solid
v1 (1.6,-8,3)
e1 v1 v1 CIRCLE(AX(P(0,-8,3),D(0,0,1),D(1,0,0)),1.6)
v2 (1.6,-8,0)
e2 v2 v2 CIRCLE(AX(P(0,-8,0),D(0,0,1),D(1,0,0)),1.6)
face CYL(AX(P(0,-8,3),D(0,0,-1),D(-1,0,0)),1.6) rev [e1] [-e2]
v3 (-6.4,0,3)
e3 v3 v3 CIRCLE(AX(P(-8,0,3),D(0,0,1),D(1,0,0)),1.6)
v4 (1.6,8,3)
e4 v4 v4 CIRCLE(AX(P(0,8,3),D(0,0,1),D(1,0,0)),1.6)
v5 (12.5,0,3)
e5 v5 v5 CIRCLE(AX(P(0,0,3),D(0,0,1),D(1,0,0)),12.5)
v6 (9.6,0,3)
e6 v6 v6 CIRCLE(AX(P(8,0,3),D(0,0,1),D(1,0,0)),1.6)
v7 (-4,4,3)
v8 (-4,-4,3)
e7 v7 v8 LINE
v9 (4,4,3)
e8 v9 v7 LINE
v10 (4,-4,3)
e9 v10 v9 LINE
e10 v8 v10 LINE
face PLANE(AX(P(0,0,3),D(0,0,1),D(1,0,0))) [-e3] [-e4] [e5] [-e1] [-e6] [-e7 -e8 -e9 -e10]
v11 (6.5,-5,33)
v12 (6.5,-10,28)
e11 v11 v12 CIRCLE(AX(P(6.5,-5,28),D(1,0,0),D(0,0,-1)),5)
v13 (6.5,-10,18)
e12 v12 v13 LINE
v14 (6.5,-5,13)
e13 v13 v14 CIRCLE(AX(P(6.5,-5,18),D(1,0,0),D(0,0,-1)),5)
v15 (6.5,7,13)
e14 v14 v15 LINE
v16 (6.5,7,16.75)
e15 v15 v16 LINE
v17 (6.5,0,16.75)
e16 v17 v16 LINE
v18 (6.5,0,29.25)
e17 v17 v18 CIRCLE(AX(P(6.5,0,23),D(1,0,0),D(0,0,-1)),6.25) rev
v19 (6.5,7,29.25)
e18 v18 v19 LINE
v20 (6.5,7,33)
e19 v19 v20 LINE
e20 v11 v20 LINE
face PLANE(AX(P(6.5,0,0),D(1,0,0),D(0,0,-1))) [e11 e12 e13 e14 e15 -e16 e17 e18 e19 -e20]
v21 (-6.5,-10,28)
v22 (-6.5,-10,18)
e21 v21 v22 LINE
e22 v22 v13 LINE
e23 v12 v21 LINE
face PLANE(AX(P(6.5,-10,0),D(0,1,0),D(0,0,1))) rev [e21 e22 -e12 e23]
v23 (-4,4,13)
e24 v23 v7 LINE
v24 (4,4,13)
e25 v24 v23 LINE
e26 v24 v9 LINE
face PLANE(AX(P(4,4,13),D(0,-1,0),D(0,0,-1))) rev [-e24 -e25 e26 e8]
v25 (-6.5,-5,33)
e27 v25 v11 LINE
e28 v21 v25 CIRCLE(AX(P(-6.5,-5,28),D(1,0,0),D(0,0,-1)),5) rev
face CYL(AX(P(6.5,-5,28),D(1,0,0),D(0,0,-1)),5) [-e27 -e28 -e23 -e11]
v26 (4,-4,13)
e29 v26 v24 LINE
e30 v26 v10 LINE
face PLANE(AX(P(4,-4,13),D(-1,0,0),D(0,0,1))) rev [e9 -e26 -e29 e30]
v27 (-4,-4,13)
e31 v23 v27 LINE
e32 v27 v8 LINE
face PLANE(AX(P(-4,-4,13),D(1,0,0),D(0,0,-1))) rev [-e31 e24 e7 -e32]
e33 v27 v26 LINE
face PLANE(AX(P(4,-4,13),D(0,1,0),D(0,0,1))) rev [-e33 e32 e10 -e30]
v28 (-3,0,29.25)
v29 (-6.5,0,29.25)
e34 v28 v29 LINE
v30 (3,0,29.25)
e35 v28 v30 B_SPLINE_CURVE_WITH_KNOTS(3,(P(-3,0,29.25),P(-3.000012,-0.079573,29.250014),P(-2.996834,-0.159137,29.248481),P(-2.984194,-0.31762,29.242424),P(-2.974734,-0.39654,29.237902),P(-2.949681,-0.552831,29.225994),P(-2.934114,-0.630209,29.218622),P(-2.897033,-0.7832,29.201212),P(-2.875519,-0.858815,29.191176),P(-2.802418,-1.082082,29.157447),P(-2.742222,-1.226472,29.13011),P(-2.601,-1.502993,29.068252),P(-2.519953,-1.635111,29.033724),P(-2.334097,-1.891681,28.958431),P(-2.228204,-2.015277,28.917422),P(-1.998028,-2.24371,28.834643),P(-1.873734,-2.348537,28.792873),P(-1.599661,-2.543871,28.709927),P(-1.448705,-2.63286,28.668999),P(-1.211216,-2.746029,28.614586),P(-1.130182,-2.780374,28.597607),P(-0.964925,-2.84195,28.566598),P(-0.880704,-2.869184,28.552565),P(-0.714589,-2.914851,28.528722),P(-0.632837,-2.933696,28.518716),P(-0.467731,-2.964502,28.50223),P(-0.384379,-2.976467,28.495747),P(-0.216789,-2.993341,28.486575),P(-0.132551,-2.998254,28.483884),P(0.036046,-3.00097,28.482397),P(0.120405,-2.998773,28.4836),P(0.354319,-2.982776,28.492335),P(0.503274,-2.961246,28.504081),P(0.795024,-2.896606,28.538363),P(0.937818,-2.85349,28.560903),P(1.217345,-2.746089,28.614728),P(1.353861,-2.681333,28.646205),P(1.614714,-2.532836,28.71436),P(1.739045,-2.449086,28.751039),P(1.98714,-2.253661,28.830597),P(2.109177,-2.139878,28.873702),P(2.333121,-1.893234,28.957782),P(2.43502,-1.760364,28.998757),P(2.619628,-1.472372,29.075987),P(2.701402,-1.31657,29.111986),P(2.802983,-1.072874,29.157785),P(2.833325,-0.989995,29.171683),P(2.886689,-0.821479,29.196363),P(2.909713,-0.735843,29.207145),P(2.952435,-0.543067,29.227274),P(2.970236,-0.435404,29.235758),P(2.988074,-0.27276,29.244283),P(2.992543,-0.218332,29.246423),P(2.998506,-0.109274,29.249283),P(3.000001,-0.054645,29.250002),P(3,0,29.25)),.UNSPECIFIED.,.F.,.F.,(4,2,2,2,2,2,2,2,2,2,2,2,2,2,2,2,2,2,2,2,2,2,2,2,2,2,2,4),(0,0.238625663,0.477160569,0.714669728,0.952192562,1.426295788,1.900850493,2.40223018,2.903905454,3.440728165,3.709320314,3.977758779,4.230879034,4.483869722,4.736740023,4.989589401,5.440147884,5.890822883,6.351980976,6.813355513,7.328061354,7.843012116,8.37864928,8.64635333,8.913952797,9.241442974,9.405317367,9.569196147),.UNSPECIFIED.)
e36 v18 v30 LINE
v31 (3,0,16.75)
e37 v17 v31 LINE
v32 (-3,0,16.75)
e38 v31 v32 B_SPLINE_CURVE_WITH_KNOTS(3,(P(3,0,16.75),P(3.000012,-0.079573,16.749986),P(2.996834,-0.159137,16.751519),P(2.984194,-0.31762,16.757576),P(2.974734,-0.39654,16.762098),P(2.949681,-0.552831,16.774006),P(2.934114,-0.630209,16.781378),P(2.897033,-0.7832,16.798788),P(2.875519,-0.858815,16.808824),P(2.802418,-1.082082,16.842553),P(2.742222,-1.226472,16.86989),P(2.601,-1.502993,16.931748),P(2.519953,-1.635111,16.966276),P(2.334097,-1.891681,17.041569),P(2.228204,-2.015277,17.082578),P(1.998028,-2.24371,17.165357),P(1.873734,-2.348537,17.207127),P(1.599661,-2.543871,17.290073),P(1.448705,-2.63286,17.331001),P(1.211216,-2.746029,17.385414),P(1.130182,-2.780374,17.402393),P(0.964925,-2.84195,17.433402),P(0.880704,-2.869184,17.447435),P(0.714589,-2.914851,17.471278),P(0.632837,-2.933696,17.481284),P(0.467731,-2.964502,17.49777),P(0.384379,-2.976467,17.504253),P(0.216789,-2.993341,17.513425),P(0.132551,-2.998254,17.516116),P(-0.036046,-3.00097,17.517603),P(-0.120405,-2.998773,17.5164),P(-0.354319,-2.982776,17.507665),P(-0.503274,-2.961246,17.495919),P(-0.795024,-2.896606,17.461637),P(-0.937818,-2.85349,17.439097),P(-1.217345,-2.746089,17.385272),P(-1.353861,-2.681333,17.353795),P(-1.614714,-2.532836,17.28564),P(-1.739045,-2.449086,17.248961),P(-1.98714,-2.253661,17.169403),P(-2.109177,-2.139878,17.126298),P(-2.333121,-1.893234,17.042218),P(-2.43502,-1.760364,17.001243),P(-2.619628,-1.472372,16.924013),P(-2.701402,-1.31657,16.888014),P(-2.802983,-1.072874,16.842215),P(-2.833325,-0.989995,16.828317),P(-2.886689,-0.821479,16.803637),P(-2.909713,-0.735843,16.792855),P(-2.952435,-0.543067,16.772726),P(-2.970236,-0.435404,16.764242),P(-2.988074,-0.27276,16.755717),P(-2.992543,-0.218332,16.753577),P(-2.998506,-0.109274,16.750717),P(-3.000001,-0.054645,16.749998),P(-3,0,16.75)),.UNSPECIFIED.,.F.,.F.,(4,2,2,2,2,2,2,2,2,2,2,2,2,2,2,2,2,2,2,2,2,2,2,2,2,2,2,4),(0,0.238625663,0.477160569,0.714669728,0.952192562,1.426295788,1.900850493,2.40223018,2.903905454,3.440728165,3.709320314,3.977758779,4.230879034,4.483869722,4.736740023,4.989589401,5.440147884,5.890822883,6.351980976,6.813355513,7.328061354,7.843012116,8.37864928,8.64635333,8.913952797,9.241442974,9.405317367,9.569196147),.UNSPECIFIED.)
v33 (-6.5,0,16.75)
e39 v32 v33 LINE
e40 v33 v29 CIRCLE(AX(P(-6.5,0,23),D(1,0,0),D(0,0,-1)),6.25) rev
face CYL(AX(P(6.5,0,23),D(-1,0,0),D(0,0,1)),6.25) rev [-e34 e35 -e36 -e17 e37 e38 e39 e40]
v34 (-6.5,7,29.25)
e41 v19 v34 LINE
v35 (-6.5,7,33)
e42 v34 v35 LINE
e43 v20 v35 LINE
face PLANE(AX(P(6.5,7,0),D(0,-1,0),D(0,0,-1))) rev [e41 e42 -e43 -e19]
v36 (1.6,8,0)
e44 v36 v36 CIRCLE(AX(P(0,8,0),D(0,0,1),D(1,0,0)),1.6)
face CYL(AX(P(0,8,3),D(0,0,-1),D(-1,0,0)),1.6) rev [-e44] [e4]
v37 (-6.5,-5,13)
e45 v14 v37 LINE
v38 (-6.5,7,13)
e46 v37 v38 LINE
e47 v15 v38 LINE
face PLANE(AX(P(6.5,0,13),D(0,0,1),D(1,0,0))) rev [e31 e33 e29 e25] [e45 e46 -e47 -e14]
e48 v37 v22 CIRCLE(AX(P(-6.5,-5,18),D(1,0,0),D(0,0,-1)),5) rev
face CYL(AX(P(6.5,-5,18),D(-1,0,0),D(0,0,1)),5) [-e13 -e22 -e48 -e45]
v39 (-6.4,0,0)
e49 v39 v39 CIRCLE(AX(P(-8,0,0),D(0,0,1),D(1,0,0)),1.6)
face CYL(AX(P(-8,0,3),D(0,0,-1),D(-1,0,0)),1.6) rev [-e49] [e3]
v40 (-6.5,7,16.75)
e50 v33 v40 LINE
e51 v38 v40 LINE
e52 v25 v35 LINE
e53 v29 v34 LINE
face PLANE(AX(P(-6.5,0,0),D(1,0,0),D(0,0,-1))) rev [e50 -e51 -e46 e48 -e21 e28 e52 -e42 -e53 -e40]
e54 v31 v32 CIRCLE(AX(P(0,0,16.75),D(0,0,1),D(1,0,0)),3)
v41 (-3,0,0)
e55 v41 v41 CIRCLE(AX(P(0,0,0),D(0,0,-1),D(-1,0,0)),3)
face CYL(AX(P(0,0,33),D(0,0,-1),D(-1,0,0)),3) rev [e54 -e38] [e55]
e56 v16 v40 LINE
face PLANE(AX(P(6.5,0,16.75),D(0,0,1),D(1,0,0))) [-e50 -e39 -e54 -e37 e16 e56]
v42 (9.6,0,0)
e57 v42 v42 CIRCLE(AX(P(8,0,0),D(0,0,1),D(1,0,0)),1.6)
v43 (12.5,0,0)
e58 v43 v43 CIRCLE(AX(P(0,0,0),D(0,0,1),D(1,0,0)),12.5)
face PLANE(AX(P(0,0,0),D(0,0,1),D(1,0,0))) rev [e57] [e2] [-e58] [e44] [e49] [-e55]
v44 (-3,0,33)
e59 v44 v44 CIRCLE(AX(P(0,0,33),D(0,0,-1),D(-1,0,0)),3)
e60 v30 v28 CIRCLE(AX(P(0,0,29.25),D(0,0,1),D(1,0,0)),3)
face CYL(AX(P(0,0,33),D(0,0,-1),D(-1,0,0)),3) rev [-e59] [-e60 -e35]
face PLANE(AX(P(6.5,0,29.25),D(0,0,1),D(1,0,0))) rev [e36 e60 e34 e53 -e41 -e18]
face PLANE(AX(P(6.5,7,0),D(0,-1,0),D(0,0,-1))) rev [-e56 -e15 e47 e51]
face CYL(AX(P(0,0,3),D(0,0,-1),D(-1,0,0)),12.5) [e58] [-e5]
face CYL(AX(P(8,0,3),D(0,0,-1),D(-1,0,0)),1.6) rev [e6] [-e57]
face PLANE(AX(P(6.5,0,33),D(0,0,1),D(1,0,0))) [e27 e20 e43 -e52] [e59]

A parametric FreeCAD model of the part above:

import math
import FreeCAD as App
import Part
import Sketcher

V = App.Vector


def edges_at(feature, points):
    """Names of the edges that pass closest to the given points."""
    edges = feature.Shape.Edges
    near = lambda p: min(range(len(edges)), key=lambda i: edges[i].distToShape(Part.Vertex(*p))[0])
    return sorted({f"Edge{near(p) + 1}" for p in points})


def add_polygon(sketch, points):
    """Adds a closed chain of lines whose ends are joined by coincident constraints."""
    first, n = sketch.GeometryCount, len(points)
    for a, b in zip(points, points[1:] + points[:1]):
        sketch.addGeometry(Part.LineSegment(App.Vector(*a, 0), App.Vector(*b, 0)), False)
    for i in range(n):
        sketch.addConstraint(Sketcher.Constraint("Coincident", first + i, 2, first + (i + 1) % n, 1))

doc = App.newDocument("Part")
body = doc.addObject("PartDesign::Body", "Body")

# Sketch on XY plane
sketch1 = body.newObject("Sketcher::SketchObject", "Sketch")
sketch1.AttachmentSupport = (doc.getObject("XY_Plane"), [""])
sketch1.MapMode = "FlatFace"
sketch1.addGeometry(Part.Circle(V(0, 0, 0), V(0, 0, 1), 12.5), False)
sketch1.addGeometry(Part.Circle(V(-8, 0, 0), V(0, 0, 1), 1.6), False)
sketch1.addGeometry(Part.Circle(V(0, -8, 0), V(0, 0, 1), 1.6), False)
sketch1.addGeometry(Part.Circle(V(8, 0, 0), V(0, 0, 1), 1.6), False)
sketch1.addGeometry(Part.Circle(V(0, 8, 0), V(0, 0, 1), 1.6), False)
sketch1.addConstraint(Sketcher.Constraint("Coincident", 0, 3, -1, 1))
sketch1.addConstraint(Sketcher.Constraint("Equal", 1, 2))
sketch1.addConstraint(Sketcher.Constraint("Equal", 2, 3))
sketch1.addConstraint(Sketcher.Constraint("Equal", 3, 4))
sketch1.addConstraint(Sketcher.Constraint("Symmetric", 1, 3, 3, 3, -1, 1))
sketch1.addConstraint(Sketcher.Constraint("Symmetric", 2, 3, 4, 3, -1, 1))
sketch1.addConstraint(Sketcher.Constraint("PointOnObject", 1, 3, -1))
sketch1.addConstraint(Sketcher.Constraint("PointOnObject", 2, 3, -2))
sketch1.addConstraint(Sketcher.Constraint("Diameter", 0, 25.0))
sketch1.addConstraint(Sketcher.Constraint("Diameter", 1, 3.2))
sketch1.addConstraint(Sketcher.Constraint("DistanceX", 1, 3, -1, 1, 8.0))
sketch1.addConstraint(Sketcher.Constraint("DistanceY", 2, 3, -1, 1, 8.0))
pad1 = body.newObject("PartDesign::Pad", "Pad")
pad1.Profile = sketch1
pad1.Length = 3

# Sketch on XY plane
sketch2 = body.newObject("Sketcher::SketchObject", "Sketch001")
sketch2.AttachmentSupport = (doc.getObject("XY_Plane"), [""])
sketch2.MapMode = "FlatFace"
sketch2.AttachmentOffset = App.Placement(V(0, 0, 3), App.Rotation())
add_polygon(sketch2, [(-4, 4), (-4, -4), (4, -4), (4, 4)])  # lines 0-3
sketch2.addConstraint(Sketcher.Constraint("Vertical", 0))
sketch2.addConstraint(Sketcher.Constraint("Horizontal", 1))
sketch2.addConstraint(Sketcher.Constraint("Vertical", 2))
sketch2.addConstraint(Sketcher.Constraint("Horizontal", 3))
sketch2.addConstraint(Sketcher.Constraint("Symmetric", 0, 2, 2, 2, -1, 1))
sketch2.addConstraint(Sketcher.Constraint("Equal", 3, 0))
sketch2.addConstraint(Sketcher.Constraint("DistanceX", 1, 1, 1, 2, 8.0))
pad2 = body.newObject("PartDesign::Pad", "Pad001")
pad2.Profile = sketch2
pad2.Length = 10

# Sketch on YZ plane
sketch3 = body.newObject("Sketcher::SketchObject", "Sketch002")
sketch3.AttachmentSupport = (doc.getObject("YZ_Plane"), [""])
sketch3.MapMode = "FlatFace"
sketch3.addGeometry(Part.LineSegment(V(-10, 13, 0), V(-10, 33, 0)), False)
sketch3.addGeometry(Part.LineSegment(V(-10, 33, 0), V(7, 33, 0)), False)
sketch3.addGeometry(Part.LineSegment(V(7, 33, 0), V(7, 29.25, 0)), False)
sketch3.addGeometry(Part.LineSegment(V(7, 29.25, 0), V(0, 29.25, 0)), False)
sketch3.addGeometry(Part.ArcOfCircle(Part.Circle(V(0, 23, 0), V(0, 0, 1), 6.25), math.radians(90), math.radians(270)), False)
sketch3.addGeometry(Part.LineSegment(V(0, 16.75, 0), V(7, 16.75, 0)), False)
sketch3.addGeometry(Part.LineSegment(V(7, 16.75, 0), V(7, 13, 0)), False)
sketch3.addGeometry(Part.LineSegment(V(7, 13, 0), V(-10, 13, 0)), False)
sketch3.addConstraint(Sketcher.Constraint("Coincident", 0, 2, 1, 1))
sketch3.addConstraint(Sketcher.Constraint("Coincident", 1, 2, 2, 1))
sketch3.addConstraint(Sketcher.Constraint("Coincident", 2, 2, 3, 1))
sketch3.addConstraint(Sketcher.Constraint("Tangent", 3, 2, 4, 1))
sketch3.addConstraint(Sketcher.Constraint("Tangent", 4, 2, 5, 1))
sketch3.addConstraint(Sketcher.Constraint("Coincident", 5, 2, 6, 1))
sketch3.addConstraint(Sketcher.Constraint("Coincident", 6, 2, 7, 1))
sketch3.addConstraint(Sketcher.Constraint("Coincident", 7, 2, 0, 1))
sketch3.addConstraint(Sketcher.Constraint("Vertical", 0))
sketch3.addConstraint(Sketcher.Constraint("Horizontal", 1))
sketch3.addConstraint(Sketcher.Constraint("Vertical", 2))
sketch3.addConstraint(Sketcher.Constraint("Horizontal", 3))
sketch3.addConstraint(Sketcher.Constraint("Horizontal", 5))
sketch3.addConstraint(Sketcher.Constraint("Vertical", 6))
sketch3.addConstraint(Sketcher.Constraint("Horizontal", 7))
sketch3.addConstraint(Sketcher.Constraint("PointOnObject", 4, 3, -2))
sketch3.addConstraint(Sketcher.Constraint("Vertical", 2, 2, 5, 2))
sketch3.addConstraint(Sketcher.Constraint("Equal", 2, 6))
sketch3.addConstraint(Sketcher.Constraint("DistanceX", 1, 1, 1, 2, 17.0))
sketch3.addConstraint(Sketcher.Constraint("DistanceX", 3, 2, 3, 1, 7.0))
sketch3.addConstraint(Sketcher.Constraint("DistanceY", 0, 1, 0, 2, 20.0))
sketch3.addConstraint(Sketcher.Constraint("Radius", 4, 6.25))
sketch3.addConstraint(Sketcher.Constraint("DistanceY", -1, 1, 4, 3, 23.0))
pad3 = body.newObject("PartDesign::Pad", "Pad002")
pad3.Profile = sketch3
pad3.Length = 13
pad3.Midplane = True

# Sketch on XY plane
sketch4 = body.newObject("Sketcher::SketchObject", "Sketch003")
sketch4.AttachmentSupport = (doc.getObject("XY_Plane"), [""])
sketch4.MapMode = "FlatFace"
sketch4.addGeometry(Part.Circle(V(0, 0, 0), V(0, 0, 1), 3), False)
sketch4.addConstraint(Sketcher.Constraint("Coincident", 0, 3, -1, 1))
sketch4.addConstraint(Sketcher.Constraint("Diameter", 0, 6.0))
pocket1 = body.newObject("PartDesign::Pocket", "Pocket")
pocket1.Profile = sketch4
pocket1.Type = "ThroughAll"
pocket1.Reversed = True
doc.recompute()

fillet = body.newObject("PartDesign::Fillet", "Fillet")
fillet.Base = (pocket1, edges_at(pocket1, [(0, -10, 13), (0, -10, 33)]))
fillet.Radius = 5

doc.recompute()
